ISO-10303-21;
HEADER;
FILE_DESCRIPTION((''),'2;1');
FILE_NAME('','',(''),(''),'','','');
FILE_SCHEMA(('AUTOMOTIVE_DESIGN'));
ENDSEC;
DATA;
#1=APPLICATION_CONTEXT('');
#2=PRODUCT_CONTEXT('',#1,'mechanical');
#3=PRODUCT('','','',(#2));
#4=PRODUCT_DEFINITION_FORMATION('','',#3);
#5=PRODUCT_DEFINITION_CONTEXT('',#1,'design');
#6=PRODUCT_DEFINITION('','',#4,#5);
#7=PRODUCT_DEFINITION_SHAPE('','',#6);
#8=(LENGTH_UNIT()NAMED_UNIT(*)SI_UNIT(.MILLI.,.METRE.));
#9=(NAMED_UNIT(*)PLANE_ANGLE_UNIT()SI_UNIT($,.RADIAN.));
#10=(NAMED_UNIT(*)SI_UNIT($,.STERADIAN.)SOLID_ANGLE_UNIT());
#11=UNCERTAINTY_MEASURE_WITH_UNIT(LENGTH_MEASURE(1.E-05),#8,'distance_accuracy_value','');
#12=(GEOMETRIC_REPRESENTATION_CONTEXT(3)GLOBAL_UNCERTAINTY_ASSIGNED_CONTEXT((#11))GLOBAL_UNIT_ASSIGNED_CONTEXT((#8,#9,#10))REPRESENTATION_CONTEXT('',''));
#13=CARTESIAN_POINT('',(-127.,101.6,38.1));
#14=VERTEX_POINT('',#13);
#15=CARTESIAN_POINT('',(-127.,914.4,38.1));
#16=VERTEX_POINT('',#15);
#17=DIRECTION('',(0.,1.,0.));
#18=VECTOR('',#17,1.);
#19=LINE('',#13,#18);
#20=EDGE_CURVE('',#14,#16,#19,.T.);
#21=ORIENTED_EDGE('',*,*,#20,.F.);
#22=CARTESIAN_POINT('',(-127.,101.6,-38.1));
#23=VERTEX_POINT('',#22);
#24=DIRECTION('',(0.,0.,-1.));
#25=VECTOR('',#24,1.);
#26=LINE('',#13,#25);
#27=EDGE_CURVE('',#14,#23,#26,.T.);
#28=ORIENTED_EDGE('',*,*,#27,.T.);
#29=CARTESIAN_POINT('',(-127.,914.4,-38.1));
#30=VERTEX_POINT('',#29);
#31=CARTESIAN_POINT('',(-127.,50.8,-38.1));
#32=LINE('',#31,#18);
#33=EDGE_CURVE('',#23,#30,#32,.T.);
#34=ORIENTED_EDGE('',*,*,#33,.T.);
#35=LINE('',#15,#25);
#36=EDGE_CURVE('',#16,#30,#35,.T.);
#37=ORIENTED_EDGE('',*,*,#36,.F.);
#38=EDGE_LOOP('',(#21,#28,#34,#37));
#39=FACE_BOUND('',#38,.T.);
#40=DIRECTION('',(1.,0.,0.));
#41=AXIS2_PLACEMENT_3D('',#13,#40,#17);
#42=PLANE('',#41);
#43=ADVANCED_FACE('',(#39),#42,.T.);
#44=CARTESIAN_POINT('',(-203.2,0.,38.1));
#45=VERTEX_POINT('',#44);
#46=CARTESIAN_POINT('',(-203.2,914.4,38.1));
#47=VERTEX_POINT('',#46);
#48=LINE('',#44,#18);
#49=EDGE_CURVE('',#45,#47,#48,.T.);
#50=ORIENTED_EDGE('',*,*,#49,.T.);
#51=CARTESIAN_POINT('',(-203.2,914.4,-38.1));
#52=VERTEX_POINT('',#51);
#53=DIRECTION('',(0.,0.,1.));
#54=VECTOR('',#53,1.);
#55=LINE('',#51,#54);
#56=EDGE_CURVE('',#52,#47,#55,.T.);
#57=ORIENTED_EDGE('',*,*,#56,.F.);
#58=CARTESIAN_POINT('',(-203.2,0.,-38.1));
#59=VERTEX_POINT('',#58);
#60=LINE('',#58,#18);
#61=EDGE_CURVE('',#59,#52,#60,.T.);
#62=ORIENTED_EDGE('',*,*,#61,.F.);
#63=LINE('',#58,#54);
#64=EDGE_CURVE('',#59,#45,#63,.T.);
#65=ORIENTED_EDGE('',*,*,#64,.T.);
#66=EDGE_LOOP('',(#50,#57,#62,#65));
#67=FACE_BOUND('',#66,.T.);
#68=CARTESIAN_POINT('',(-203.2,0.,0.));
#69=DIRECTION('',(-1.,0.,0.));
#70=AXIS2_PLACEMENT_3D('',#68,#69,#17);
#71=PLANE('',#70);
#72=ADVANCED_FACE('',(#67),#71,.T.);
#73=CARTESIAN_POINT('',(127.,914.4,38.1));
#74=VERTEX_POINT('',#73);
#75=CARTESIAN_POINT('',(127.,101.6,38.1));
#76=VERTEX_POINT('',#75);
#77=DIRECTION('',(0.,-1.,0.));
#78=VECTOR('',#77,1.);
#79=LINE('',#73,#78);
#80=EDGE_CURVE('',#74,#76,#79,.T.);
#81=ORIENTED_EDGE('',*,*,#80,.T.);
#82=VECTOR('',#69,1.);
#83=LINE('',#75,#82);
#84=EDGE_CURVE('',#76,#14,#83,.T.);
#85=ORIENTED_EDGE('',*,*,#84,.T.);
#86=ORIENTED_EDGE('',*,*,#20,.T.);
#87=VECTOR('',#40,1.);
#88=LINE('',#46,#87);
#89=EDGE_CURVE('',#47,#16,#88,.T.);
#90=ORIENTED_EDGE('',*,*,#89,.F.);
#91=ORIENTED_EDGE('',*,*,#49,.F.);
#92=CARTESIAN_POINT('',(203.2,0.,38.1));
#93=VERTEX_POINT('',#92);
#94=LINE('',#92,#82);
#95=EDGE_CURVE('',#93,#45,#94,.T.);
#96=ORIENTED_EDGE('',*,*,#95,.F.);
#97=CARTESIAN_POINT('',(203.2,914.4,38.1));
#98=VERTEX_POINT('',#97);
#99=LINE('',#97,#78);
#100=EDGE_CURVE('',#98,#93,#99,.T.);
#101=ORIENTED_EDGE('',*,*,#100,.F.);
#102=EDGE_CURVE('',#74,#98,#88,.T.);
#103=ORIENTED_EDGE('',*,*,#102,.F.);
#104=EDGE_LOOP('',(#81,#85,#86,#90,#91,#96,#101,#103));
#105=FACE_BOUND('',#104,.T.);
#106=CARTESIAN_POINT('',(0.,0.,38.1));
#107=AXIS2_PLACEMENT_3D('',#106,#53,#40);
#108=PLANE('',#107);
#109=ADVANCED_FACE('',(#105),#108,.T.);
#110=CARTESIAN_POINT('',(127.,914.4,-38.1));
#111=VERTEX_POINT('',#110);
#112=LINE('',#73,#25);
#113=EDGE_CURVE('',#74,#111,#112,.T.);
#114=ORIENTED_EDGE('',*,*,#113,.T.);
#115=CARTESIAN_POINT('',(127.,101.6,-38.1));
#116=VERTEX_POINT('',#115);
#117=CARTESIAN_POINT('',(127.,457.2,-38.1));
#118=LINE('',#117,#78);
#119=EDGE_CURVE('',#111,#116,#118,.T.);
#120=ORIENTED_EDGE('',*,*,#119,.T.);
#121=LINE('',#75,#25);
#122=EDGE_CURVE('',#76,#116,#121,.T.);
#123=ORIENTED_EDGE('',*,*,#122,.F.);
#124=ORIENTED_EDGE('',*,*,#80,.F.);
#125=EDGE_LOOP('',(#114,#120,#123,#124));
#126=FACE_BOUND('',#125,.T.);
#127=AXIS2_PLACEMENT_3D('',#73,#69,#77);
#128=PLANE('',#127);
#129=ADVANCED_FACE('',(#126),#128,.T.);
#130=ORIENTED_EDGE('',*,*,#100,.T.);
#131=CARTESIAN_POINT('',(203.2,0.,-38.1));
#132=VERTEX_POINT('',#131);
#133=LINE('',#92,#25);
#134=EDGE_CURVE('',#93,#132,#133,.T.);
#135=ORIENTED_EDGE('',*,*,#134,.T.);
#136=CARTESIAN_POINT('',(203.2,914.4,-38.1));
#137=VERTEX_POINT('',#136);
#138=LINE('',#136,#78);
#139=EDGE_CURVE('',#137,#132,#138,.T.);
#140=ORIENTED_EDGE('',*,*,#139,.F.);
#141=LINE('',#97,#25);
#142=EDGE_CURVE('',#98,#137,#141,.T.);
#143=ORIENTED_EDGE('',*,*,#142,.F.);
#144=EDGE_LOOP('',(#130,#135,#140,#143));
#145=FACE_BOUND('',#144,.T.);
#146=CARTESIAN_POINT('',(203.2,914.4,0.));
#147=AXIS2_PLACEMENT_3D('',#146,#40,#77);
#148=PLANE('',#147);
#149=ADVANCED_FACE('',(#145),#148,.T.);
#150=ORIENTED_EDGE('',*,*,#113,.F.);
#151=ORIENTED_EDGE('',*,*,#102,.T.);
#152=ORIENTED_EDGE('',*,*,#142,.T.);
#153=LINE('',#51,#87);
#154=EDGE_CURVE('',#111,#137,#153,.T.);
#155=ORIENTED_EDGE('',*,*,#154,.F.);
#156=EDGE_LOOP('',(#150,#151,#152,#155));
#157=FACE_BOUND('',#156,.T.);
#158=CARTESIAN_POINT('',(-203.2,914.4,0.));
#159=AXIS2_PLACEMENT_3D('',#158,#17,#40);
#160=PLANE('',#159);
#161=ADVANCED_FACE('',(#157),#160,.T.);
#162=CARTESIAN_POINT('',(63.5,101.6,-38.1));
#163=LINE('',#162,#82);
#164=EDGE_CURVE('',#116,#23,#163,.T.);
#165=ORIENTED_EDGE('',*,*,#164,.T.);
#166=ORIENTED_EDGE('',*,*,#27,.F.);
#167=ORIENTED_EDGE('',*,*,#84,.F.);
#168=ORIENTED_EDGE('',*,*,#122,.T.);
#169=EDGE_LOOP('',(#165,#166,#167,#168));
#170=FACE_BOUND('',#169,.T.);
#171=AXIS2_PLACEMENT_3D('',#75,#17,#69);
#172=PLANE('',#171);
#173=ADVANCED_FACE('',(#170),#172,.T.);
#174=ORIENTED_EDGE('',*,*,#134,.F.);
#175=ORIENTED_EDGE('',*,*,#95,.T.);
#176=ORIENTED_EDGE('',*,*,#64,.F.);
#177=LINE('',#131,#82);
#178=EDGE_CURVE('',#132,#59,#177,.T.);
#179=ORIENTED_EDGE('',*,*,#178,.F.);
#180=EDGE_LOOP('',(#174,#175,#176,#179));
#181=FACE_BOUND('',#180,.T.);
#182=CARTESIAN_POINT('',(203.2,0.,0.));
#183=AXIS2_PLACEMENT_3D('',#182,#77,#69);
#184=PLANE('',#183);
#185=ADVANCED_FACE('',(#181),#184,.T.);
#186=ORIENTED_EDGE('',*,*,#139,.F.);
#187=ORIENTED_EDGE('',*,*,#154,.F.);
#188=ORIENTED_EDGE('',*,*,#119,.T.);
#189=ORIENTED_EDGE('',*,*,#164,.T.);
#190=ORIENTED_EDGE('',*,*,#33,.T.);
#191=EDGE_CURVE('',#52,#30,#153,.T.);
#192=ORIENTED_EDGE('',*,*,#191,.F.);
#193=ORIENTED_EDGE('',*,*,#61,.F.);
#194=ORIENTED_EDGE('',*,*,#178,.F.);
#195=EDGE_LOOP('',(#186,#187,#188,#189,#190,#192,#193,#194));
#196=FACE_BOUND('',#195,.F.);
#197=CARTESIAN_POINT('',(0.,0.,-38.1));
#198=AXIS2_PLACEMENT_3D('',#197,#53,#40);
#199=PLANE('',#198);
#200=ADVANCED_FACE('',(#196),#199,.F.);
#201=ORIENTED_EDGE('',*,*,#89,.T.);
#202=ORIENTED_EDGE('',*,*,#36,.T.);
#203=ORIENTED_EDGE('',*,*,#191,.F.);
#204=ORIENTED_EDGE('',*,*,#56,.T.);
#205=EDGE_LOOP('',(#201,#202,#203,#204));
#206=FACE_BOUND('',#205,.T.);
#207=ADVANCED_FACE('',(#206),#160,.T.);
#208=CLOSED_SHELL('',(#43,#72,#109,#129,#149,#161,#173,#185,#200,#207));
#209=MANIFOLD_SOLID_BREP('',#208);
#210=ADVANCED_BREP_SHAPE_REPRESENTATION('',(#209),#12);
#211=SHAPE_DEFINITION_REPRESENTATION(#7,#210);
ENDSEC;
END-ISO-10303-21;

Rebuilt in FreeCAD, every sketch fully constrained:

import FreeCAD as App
import Part
import Sketcher
from FreeCAD import Vector
Q = App.Units.Quantity


def add_polygon(sketch, points):
    """Adds a closed chain of lines whose ends are joined by coincident constraints."""
    first, n = sketch.GeometryCount, len(points)
    for a, b in zip(points, points[1:] + points[:1]):
        sketch.addGeometry(Part.LineSegment(App.Vector(*a, 0), App.Vector(*b, 0)), False)
    for i in range(n):
        sketch.addConstraint(Sketcher.Constraint("Coincident", first + i, 2, first + (i + 1) % n, 1))

doc = App.newDocument("Part")
body = doc.addObject("PartDesign::Body", "Body")

sketch1 = body.newObject("Sketcher::SketchObject", "Sketch")
sketch1.AttachmentSupport = (doc.getObject("XY_Plane"), [""])
sketch1.MapMode = "FlatFace"
add_polygon(sketch1, [(203.2, 914.4), (-203.2, 914.4), (-203.2, 0), (203.2, 0)])
sketch1.addConstraint(Sketcher.Constraint("Horizontal", 0))
sketch1.addConstraint(Sketcher.Constraint("Vertical", 1))
sketch1.addConstraint(Sketcher.Constraint("Horizontal", 2))
sketch1.addConstraint(Sketcher.Constraint("Vertical", 3))
sketch1.addConstraint(Sketcher.Constraint("Symmetric", 1, 2, 2, 2, -1, 1))
sketch1.addConstraint(Sketcher.Constraint("DistanceX", 0, 2, 0, 1, Q("16 in")))
sketch1.addConstraint(Sketcher.Constraint("DistanceY", 1, 2, 1, 1, Q("36 in")))
pad1 = body.newObject("PartDesign::Pad", "Pad")
pad1.Profile = sketch1
pad1.Length = Q("3 in")
pad1.Midplane = True

sketch2 = body.newObject("Sketcher::SketchObject", "Sketch001")
sketch2.AttachmentSupport = (doc.getObject("XY_Plane"), [""])
sketch2.MapMode = "FlatFace"
sketch2.AttachmentOffset = App.Placement(Vector(0, 0, 1.5 * 25.4), App.Rotation())
add_polygon(sketch2, [(127, 914.4), (-127, 914.4), (-127, 101.6), (127, 101.6)])
sketch2.addConstraint(Sketcher.Constraint("Horizontal", 0))
sketch2.addConstraint(Sketcher.Constraint("Vertical", 1))
sketch2.addConstraint(Sketcher.Constraint("Horizontal", 2))
sketch2.addConstraint(Sketcher.Constraint("Vertical", 3))
sketch2.addConstraint(Sketcher.Constraint("DistanceY", -1, 1, 1, 2, Q("4 in")))
sketch2.addConstraint(Sketcher.Constraint("DistanceX", 0, 2, 0, 1, Q("10 in")))
sketch2.addConstraint(Sketcher.Constraint("DistanceY", 1, 2, 1, 1, Q("32 in")))
sketch2.addConstraint(Sketcher.Constraint("DistanceX", 0, 2, -1, 1, Q("5 in")))
pocket1 = body.newObject("PartDesign::Pocket", "Pocket")
pocket1.Profile = sketch2
pocket1.Type = "ThroughAll"

doc.recompute()
